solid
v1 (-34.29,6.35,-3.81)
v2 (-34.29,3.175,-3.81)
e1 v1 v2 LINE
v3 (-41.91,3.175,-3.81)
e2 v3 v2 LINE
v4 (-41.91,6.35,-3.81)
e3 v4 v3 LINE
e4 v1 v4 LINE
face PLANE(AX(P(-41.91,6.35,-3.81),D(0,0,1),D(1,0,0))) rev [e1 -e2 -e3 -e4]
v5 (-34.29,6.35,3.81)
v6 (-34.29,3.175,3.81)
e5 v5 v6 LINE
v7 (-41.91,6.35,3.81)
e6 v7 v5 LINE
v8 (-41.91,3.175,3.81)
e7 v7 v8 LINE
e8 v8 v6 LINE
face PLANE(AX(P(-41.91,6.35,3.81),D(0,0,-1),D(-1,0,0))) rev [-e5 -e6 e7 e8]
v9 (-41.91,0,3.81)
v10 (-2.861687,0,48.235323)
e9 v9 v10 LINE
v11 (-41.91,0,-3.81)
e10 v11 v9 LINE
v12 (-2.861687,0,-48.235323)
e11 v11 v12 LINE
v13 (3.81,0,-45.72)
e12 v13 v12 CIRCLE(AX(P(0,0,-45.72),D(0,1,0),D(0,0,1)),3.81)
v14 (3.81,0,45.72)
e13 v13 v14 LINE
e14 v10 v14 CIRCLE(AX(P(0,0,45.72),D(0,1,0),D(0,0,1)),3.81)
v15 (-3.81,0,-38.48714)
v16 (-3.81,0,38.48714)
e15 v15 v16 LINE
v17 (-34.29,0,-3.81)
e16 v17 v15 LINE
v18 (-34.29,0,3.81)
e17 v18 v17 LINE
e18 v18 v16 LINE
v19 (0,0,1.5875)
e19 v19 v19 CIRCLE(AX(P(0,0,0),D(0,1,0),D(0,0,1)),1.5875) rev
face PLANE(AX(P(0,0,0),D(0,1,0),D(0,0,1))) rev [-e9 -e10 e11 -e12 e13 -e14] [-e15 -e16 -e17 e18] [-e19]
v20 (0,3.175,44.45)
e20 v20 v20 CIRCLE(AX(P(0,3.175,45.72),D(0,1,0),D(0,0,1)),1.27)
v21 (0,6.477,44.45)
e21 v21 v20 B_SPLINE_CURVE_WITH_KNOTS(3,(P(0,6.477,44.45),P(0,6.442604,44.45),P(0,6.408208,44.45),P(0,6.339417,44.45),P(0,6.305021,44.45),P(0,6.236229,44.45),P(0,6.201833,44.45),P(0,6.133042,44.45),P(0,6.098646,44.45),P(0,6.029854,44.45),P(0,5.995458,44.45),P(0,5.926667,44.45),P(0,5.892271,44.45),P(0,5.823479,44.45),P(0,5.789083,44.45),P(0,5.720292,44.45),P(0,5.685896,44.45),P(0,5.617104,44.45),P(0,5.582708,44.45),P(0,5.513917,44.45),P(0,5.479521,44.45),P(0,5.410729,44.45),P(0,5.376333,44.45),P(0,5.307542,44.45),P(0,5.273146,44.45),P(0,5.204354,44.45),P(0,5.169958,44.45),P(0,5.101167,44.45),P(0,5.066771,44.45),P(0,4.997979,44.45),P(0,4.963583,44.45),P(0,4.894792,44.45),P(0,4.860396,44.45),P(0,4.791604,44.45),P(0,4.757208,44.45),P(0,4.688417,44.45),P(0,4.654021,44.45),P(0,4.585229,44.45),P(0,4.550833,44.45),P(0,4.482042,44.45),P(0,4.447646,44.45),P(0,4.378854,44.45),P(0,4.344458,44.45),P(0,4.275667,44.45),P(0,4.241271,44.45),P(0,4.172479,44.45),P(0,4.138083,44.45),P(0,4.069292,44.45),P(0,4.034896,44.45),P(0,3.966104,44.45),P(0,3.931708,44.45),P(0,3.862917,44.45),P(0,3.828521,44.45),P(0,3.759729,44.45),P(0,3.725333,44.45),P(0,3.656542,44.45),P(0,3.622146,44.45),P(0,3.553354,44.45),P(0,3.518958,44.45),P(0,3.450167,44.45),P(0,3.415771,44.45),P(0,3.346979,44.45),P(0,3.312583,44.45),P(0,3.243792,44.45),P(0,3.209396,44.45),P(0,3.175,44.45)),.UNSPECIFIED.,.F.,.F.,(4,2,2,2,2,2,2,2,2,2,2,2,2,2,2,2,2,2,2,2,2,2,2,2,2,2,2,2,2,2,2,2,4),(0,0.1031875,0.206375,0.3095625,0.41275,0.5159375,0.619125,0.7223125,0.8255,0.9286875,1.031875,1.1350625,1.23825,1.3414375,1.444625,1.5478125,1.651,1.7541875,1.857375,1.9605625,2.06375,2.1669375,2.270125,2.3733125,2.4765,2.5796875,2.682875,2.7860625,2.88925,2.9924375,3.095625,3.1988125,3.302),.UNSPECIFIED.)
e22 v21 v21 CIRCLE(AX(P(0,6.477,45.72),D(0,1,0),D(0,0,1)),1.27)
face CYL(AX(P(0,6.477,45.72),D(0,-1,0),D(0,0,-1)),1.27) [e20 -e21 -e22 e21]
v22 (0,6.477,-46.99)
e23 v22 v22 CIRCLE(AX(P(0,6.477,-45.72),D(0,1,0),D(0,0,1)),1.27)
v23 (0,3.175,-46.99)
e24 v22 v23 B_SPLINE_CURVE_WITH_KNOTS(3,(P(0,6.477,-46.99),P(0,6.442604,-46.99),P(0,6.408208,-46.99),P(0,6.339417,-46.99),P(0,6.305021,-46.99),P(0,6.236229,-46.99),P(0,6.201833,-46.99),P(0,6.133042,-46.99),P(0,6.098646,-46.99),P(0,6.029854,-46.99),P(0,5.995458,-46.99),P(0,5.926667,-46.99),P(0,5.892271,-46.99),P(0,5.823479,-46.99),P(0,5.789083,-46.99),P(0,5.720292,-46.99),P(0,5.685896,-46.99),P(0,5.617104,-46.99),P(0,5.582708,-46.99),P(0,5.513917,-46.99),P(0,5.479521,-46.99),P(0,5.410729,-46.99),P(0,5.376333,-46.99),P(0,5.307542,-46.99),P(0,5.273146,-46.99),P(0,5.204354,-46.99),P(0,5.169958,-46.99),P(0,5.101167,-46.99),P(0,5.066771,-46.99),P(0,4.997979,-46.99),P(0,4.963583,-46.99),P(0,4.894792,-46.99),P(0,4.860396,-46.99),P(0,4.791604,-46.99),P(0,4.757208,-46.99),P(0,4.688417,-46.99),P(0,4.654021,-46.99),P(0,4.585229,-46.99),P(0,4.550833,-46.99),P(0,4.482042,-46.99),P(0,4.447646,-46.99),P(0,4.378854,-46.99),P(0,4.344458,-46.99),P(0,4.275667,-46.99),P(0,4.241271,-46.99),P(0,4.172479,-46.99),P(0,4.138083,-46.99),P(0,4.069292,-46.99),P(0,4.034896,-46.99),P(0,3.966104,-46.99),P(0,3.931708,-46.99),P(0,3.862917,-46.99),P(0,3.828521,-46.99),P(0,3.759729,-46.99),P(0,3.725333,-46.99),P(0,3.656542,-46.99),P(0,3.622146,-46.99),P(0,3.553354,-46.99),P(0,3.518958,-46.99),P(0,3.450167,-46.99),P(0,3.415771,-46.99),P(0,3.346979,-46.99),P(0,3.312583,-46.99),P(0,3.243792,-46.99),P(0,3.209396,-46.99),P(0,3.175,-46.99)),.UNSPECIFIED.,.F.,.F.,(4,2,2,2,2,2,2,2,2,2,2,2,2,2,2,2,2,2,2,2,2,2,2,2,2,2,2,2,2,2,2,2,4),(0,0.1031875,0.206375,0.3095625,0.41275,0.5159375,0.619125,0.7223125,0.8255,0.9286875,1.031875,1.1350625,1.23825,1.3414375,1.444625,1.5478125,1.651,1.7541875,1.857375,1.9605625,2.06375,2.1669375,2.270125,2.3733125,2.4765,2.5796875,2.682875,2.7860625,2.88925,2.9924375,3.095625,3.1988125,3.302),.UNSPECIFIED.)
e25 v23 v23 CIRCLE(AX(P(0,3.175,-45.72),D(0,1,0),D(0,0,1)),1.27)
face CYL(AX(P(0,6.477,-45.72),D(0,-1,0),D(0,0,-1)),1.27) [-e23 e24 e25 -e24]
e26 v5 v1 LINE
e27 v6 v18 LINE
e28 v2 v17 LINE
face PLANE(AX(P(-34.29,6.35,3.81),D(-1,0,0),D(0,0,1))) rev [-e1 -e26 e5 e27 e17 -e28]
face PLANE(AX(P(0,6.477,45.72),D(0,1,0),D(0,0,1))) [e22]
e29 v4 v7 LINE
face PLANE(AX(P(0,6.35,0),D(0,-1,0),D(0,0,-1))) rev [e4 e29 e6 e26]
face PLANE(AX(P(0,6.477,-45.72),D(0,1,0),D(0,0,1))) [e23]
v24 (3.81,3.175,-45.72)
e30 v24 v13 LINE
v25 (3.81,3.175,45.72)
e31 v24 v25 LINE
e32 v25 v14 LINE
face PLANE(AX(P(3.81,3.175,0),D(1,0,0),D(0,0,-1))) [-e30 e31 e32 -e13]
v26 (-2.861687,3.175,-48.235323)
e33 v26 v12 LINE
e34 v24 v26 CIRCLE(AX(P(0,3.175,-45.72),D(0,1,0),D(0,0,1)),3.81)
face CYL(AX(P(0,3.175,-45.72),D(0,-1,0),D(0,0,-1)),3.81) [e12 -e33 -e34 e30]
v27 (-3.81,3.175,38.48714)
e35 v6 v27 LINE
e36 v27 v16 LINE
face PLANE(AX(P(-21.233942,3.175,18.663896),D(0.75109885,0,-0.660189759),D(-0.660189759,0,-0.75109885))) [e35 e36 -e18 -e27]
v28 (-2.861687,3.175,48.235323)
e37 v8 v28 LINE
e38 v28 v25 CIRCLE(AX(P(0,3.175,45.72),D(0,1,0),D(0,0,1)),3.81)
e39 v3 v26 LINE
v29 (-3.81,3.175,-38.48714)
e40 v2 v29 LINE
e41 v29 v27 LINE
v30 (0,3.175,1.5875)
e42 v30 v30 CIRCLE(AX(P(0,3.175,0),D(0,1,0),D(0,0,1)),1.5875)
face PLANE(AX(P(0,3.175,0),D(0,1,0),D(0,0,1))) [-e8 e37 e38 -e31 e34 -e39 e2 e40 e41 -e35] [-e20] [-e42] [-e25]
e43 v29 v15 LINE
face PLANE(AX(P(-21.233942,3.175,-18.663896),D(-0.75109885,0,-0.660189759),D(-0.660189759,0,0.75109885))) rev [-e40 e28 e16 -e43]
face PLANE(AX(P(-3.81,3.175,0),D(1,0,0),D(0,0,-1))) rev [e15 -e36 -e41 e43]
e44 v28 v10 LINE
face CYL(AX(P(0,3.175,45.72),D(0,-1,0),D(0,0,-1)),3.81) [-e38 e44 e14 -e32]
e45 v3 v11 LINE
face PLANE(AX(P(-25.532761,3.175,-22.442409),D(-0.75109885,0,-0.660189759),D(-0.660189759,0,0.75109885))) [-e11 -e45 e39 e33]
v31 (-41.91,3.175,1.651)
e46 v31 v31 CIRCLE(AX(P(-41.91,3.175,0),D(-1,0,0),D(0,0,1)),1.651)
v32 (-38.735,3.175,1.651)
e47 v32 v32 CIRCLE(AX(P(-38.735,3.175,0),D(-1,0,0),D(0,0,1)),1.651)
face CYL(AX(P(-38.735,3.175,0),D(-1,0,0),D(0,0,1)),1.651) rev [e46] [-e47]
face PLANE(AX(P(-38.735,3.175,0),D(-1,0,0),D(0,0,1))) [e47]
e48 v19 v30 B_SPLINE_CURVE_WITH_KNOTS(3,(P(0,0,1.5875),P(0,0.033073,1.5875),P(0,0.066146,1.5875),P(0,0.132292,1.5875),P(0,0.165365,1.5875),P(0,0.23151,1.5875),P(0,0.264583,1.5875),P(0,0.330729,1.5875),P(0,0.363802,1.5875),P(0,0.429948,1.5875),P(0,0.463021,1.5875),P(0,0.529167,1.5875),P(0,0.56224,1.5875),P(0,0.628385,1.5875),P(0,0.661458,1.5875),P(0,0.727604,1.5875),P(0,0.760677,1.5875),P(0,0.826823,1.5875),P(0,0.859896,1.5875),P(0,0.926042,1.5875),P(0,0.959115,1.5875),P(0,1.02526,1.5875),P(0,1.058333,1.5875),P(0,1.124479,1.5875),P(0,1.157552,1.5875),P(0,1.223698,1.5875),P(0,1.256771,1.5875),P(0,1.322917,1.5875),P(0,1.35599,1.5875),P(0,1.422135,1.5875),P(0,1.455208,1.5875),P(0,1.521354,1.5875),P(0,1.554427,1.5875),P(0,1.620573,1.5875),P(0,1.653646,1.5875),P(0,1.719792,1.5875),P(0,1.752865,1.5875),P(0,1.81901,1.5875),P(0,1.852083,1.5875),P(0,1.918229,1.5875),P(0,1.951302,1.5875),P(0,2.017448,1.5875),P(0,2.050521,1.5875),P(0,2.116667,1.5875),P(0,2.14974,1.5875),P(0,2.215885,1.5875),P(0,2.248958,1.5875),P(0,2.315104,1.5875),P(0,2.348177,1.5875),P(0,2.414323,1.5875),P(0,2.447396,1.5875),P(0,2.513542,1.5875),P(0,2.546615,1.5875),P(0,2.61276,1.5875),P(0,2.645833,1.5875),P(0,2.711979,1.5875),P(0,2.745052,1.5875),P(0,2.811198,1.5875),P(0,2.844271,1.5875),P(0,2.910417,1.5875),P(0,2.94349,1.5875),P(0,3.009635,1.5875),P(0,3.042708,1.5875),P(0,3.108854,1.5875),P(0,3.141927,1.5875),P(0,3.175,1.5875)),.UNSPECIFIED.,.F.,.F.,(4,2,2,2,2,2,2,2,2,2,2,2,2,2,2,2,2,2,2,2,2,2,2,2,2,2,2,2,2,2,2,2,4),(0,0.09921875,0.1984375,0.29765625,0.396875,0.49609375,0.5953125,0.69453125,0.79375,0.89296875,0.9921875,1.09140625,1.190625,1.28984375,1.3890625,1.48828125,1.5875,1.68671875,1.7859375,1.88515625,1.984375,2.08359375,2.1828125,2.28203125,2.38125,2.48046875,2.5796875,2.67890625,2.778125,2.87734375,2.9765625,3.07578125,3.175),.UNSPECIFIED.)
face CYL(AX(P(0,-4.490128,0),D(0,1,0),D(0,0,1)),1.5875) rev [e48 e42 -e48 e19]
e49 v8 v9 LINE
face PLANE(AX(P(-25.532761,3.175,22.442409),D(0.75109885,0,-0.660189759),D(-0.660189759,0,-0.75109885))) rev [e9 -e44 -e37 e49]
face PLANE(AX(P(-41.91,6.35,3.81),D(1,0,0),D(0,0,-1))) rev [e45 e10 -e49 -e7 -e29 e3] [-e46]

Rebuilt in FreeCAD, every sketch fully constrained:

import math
import FreeCAD as App
import Part
import Sketcher
from FreeCAD import Vector
Q = App.Units.Quantity

doc = App.newDocument("Part")
body = doc.addObject("PartDesign::Body", "Body")

# Sketch on XZ plane
sketch1 = body.newObject("Sketcher::SketchObject", "Sketch")
sketch1.AttachmentSupport = (doc.getObject("XZ_Plane"), [""])
sketch1.MapMode = "FlatFace"
sketch1.addGeometry([
    Part.LineSegment(Vector(3.81, 45.72, 0), Vector(3.81, -45.72, 0)),  # 0
    Part.ArcOfCircle(Part.Circle(Vector(0, -45.72, 0), Vector(0, 0, 1), 3.81), math.radians(-138.685654), math.radians(0)),  # 1
    Part.LineSegment(Vector(-2.861687, -48.235323, 0), Vector(-41.91, -3.81, 0)),  # 2
    Part.LineSegment(Vector(-41.91, -3.81, 0), Vector(-34.29, -3.81, 0)),  # 3
    Part.LineSegment(Vector(-34.29, -3.81, 0), Vector(-3.81, -38.48714, 0)),  # 4
    Part.LineSegment(Vector(-3.81, -38.48714, 0), Vector(-3.81, 38.48714, 0)),  # 5
    Part.LineSegment(Vector(-3.81, 38.48714, 0), Vector(-34.29, 3.81, 0)),  # 6
    Part.LineSegment(Vector(-34.29, 3.81, 0), Vector(-41.91, 3.81, 0)),  # 7
    Part.LineSegment(Vector(-41.91, 3.81, 0), Vector(-2.861687, 48.235323, 0)),  # 8
    Part.ArcOfCircle(Part.Circle(Vector(0, 45.72, 0), Vector(0, 0, 1), 3.81), math.radians(0), math.radians(138.685654)),  # 9
], False)
sketch1.addConstraint([
    Sketcher.Constraint("Tangent", 0, 2, 1, 2),
    Sketcher.Constraint("Tangent", 1, 1, 2, 1),
    Sketcher.Constraint("Coincident", 2, 2, 3, 1),
    Sketcher.Constraint("Coincident", 3, 2, 4, 1),
    Sketcher.Constraint("Coincident", 4, 2, 5, 1),
    Sketcher.Constraint("Coincident", 5, 2, 6, 1),
    Sketcher.Constraint("Coincident", 6, 2, 7, 1),
    Sketcher.Constraint("Coincident", 7, 2, 8, 1),
    Sketcher.Constraint("Tangent", 8, 2, 9, 2),
    Sketcher.Constraint("Tangent", 9, 1, 0, 1),
    Sketcher.Constraint("Vertical", 0),
    Sketcher.Constraint("Horizontal", 3),
    Sketcher.Constraint("Vertical", 5),
    Sketcher.Constraint("Horizontal", 7),
    Sketcher.Constraint("Equal", 1, 9),
    Sketcher.Constraint("Symmetric", 1, 3, 9, 3, -1, 1),
    Sketcher.Constraint("Symmetric", 3, 2, 6, 2, -1),
    Sketcher.Constraint("Parallel", 2, 4),
    Sketcher.Constraint("Parallel", 6, 8),
    Sketcher.Constraint("Vertical", 2, 2, 7, 2),
    Sketcher.Constraint("Radius", 1, Q("0.15 in")),
    Sketcher.Constraint("DistanceX", 3, 1, 3, 2, Q("0.3 in")),
    Sketcher.Constraint("DistanceY", 0, 2, 0, 1, Q("3.6 in")),
    Sketcher.Constraint("DistanceX", 2, 2, 0, 2, Q("1.8 in")),
    Sketcher.Constraint("DistanceX", 4, 2, 0, 2, Q("0.3 in")),
    Sketcher.Constraint("DistanceY", 3, 2, 6, 2, Q("0.3 in")),
])
pad1 = body.newObject("PartDesign::Pad", "Pad")
pad1.Profile = sketch1
pad1.Length = Q("0.125 in")
pad1.Reversed = True

# Sketch on XZ plane
sketch2 = body.newObject("Sketcher::SketchObject", "Sketch001")
sketch2.AttachmentSupport = (doc.getObject("XZ_Plane"), [""])
sketch2.MapMode = "FlatFace"
sketch2.addGeometry([
    Part.LineSegment(Vector(-41.91, -3.81, 0), Vector(-41.91, 3.81, 0)),
    Part.LineSegment(Vector(-41.91, 3.81, 0), Vector(-34.29, 3.81, 0)),
    Part.LineSegment(Vector(-34.29, 3.81, 0), Vector(-34.29, -3.81, 0)),
    Part.LineSegment(Vector(-34.29, -3.81, 0), Vector(-41.91, -3.81, 0)),
], False)
sketch2.addConstraint([
    Sketcher.Constraint("Coincident", 0, 2, 1, 1),
    Sketcher.Constraint("Coincident", 1, 2, 2, 1),
    Sketcher.Constraint("Coincident", 2, 2, 3, 1),
    Sketcher.Constraint("Coincident", 3, 2, 0, 1),
    Sketcher.Constraint("Vertical", 0),
    Sketcher.Constraint("Horizontal", 1),
    Sketcher.Constraint("Vertical", 2),
    Sketcher.Constraint("Horizontal", 3),
    Sketcher.Constraint("Equal", 3, 0),
    Sketcher.Constraint("DistanceX", 1, 1, 1, 2, Q("0.3 in")),
    Sketcher.Constraint("DistanceX", 0, 2, -1, 1, Q("1.65 in")),
    Sketcher.Constraint("DistanceY", -1, 1, 0, 2, Q("0.15 in")),
])
pad2 = body.newObject("PartDesign::Pad", "Pad001")
pad2.Profile = sketch2
pad2.Length = Q("0.25 in")
pad2.Reversed = True

# Sketch on XZ plane
sketch3 = body.newObject("Sketcher::SketchObject", "Sketch002")
sketch3.AttachmentSupport = (doc.getObject("XZ_Plane"), [""])
sketch3.MapMode = "FlatFace"
sketch3.AttachmentOffset = App.Placement(Vector(0, 0, -0.125 * 25.4), App.Rotation())
sketch3.addGeometry(Part.Circle(Vector(0, 0, 0), Vector(0, 0, 1), 1.5875), False)
sketch3.addConstraint([
    Sketcher.Constraint("Coincident", 0, 3, -1, 1),
    Sketcher.Constraint("Diameter", 0, Q("0.125 in")),
])
pocket1 = body.newObject("PartDesign::Pocket", "Pocket")
pocket1.Profile = sketch3
pocket1.Type = "UpToFirst"
pocket1.Reversed = True

# Sketch on XZ plane
sketch4 = body.newObject("Sketcher::SketchObject", "Sketch003")
sketch4.AttachmentSupport = (doc.getObject("XZ_Plane"), [""])
sketch4.MapMode = "FlatFace"
sketch4.AttachmentOffset = App.Placement(Vector(0, 0, -0.125 * 25.4), App.Rotation())
sketch4.addGeometry([
    Part.Circle(Vector(0, -45.72, 0), Vector(0, 0, 1), 1.27),
    Part.Circle(Vector(0, 45.72, 0), Vector(0, 0, 1), 1.27),
], False)
sketch4.addConstraint([
    Sketcher.Constraint("Equal", 0, 1),
    Sketcher.Constraint("Symmetric", 0, 3, 1, 3, -1, 1),
    Sketcher.Constraint("PointOnObject", 0, 3, -2),
    Sketcher.Constraint("Diameter", 0, Q("0.1 in")),
    Sketcher.Constraint("DistanceY", 0, 3, -1, 1, Q("1.8 in")),
])
pad3 = body.newObject("PartDesign::Pad", "Pad002")
pad3.Profile = sketch4
pad3.Length = Q("0.13 in")
pad3.Reversed = True

# Sketch on YZ plane
sketch5 = body.newObject("Sketcher::SketchObject", "Sketch004")
sketch5.AttachmentSupport = (doc.getObject("YZ_Plane"), [""])
sketch5.MapMode = "FlatFace"
sketch5.AttachmentOffset = App.Placement(Vector(0, 0, -1.65 * 25.4), App.Rotation())
sketch5.addGeometry(Part.Circle(Vector(3.175, 0, 0), Vector(0, 0, 1), 1.651), False)
sketch5.addConstraint([
    Sketcher.Constraint("PointOnObject", 0, 3, -1),
    Sketcher.Constraint("Diameter", 0, Q("0.13 in")),
    Sketcher.Constraint("DistanceX", -1, 1, 0, 3, Q("0.125 in")),
])
pocket2 = body.newObject("PartDesign::Pocket", "Pocket001")
pocket2.Profile = sketch5
pocket2.Length = Q("0.125 in")
pocket2.Reversed = True

doc.recompute()
